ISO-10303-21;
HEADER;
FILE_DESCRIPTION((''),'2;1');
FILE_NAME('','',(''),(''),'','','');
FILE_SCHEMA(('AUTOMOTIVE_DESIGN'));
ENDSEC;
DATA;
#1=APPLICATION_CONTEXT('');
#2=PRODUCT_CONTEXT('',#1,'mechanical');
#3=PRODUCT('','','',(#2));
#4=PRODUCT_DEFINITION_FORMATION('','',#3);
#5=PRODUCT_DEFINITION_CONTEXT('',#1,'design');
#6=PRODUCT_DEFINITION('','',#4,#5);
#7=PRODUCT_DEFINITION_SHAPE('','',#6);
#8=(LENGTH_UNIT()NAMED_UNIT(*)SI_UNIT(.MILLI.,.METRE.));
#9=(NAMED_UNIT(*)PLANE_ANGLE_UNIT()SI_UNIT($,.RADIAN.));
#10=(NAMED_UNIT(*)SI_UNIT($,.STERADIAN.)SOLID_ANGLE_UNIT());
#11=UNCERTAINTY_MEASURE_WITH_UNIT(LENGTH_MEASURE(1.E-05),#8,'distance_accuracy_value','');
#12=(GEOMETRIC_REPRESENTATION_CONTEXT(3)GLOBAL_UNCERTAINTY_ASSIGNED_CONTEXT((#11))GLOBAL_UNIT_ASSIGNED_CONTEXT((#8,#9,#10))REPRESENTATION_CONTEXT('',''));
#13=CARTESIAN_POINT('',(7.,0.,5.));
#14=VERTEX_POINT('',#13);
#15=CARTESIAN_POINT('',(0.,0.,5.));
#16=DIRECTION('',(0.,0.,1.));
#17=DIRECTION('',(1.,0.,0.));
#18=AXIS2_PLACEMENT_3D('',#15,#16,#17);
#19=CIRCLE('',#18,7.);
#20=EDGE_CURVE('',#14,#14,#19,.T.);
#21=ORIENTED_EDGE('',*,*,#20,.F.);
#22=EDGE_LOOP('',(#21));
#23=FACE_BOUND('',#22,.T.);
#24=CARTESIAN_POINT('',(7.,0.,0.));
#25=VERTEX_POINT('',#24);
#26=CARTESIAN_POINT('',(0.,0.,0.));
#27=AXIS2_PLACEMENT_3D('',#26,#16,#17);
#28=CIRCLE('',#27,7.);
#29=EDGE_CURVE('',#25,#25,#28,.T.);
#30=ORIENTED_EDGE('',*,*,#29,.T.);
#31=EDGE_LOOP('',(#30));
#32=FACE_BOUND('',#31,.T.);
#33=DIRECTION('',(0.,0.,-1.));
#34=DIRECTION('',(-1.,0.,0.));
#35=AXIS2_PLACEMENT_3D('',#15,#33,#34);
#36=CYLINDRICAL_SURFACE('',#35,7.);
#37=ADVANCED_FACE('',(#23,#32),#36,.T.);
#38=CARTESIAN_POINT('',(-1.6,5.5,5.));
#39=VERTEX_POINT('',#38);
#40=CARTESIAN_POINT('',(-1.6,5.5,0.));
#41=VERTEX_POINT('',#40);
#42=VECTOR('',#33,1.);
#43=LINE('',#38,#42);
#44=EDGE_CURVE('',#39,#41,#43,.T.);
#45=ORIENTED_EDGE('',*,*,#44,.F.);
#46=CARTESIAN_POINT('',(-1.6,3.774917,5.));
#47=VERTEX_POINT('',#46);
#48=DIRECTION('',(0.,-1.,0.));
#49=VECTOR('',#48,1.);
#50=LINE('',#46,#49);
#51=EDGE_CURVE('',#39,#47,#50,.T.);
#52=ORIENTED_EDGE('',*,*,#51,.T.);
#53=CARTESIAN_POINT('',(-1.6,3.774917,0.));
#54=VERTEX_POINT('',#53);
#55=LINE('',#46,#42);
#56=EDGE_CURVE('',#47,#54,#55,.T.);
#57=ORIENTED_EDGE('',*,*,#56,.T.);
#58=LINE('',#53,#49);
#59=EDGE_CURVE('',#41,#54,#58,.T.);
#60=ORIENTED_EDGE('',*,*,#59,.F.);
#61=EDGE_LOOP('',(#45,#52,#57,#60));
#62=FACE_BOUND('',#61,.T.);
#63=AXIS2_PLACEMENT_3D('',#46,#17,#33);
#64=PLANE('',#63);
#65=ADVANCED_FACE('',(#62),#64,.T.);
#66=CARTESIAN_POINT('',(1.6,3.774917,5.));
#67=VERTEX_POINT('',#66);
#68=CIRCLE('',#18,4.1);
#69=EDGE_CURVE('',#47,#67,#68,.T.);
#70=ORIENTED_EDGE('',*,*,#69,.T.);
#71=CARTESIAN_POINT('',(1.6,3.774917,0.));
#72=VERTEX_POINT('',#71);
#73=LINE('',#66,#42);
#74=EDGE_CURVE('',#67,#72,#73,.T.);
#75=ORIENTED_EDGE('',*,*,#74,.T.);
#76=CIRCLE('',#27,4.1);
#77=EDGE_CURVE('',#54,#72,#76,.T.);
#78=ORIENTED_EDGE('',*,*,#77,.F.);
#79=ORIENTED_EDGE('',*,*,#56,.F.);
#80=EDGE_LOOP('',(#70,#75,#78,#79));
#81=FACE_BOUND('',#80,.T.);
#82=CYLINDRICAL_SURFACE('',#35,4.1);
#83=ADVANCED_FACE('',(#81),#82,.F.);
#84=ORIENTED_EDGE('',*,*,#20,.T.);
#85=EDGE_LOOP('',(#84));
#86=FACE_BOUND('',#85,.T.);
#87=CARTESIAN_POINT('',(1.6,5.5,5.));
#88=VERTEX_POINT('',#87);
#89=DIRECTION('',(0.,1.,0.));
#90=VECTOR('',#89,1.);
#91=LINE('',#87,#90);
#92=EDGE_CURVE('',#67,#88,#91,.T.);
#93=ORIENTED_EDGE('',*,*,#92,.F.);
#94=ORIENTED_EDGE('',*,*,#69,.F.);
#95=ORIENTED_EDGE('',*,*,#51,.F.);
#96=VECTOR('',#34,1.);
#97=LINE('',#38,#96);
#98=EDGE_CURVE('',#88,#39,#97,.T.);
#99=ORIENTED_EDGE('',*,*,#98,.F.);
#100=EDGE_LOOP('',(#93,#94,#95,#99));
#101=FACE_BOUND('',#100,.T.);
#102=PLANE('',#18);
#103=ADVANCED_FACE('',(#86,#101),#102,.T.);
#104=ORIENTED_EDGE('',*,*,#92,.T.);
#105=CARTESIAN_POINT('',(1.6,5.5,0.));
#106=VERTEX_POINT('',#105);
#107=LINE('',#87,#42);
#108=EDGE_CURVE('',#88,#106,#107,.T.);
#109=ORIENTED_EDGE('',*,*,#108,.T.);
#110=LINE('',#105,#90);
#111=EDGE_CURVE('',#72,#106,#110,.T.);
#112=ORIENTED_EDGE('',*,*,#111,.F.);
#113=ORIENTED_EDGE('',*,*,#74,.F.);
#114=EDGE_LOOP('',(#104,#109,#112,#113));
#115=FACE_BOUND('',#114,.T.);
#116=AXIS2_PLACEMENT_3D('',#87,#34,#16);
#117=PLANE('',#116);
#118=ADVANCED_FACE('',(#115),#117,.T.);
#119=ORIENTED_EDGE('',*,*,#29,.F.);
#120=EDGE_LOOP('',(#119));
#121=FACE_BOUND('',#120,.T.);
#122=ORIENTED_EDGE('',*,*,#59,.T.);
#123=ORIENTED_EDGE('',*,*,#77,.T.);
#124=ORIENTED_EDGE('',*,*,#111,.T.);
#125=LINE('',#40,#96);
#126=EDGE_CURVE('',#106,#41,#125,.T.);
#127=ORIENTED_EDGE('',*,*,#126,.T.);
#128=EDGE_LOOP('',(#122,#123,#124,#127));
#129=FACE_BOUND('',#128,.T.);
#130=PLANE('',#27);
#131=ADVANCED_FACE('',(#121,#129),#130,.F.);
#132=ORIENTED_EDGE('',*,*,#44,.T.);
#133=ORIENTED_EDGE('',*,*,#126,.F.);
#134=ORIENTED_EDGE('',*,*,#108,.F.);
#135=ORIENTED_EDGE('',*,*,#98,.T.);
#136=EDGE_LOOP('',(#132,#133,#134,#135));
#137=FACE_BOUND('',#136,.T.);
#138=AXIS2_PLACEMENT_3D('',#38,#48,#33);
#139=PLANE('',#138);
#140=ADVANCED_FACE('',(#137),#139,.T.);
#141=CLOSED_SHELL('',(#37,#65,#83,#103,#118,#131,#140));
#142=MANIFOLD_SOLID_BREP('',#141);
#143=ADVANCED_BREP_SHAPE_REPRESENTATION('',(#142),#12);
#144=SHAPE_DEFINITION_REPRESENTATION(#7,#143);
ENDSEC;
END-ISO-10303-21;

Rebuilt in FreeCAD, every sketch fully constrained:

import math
import FreeCAD as App
import Part
import Sketcher

V = App.Vector
Q = App.Units.Quantity

doc = App.newDocument("Part")
body = doc.addObject("PartDesign::Body", "Body")

# Sketch on XY plane
sketch1 = body.newObject("Sketcher::SketchObject", "Sketch")
sketch1.AttachmentSupport = (doc.getObject("XY_Plane"), [""])
sketch1.MapMode = "FlatFace"
sketch1.addGeometry([
    Part.Circle(V(0, 0, 0), V(0, 0, 1), 7),  # 0
    Part.ArcOfCircle(Part.Circle(V(0, 0, 0), V(0, 0, 1), 4.1), math.radians(112.969677), math.radians(427.030323)),  # 1
    Part.LineSegment(V(-1.6, 3.774917, 0), V(-1.6, 5.5, 0)),  # 2
    Part.LineSegment(V(-1.6, 5.5, 0), V(1.6, 5.5, 0)),  # 3
    Part.LineSegment(V(1.6, 5.5, 0), V(1.6, 3.774917, 0)),  # 4
], False)
sketch1.addConstraint([
    Sketcher.Constraint("Coincident", 1, 1, 2, 1),
    Sketcher.Constraint("Coincident", 2, 2, 3, 1),
    Sketcher.Constraint("Coincident", 3, 2, 4, 1),
    Sketcher.Constraint("Coincident", 4, 2, 1, 2),
    Sketcher.Constraint("Vertical", 2),
    Sketcher.Constraint("Horizontal", 3),
    Sketcher.Constraint("Vertical", 4),
    Sketcher.Constraint("Coincident", 0, 3, -1, 1),
    Sketcher.Constraint("Coincident", 1, 3, -1, 1),
    Sketcher.Constraint("Horizontal", 1, 1, 4, 2),
    Sketcher.Constraint("Diameter", 0, Q("14 mm")),
    Sketcher.Constraint("Radius", 1, Q("4.1 mm")),
    Sketcher.Constraint("DistanceX", 3, 1, 3, 2, Q("3.2 mm")),
    Sketcher.Constraint("DistanceY", -1, 1, 2, 2, Q("5.5 mm")),
])
pad1 = body.newObject("PartDesign::Pad", "Pad")
pad1.Profile = sketch1
pad1.Length = 5

doc.recompute()
